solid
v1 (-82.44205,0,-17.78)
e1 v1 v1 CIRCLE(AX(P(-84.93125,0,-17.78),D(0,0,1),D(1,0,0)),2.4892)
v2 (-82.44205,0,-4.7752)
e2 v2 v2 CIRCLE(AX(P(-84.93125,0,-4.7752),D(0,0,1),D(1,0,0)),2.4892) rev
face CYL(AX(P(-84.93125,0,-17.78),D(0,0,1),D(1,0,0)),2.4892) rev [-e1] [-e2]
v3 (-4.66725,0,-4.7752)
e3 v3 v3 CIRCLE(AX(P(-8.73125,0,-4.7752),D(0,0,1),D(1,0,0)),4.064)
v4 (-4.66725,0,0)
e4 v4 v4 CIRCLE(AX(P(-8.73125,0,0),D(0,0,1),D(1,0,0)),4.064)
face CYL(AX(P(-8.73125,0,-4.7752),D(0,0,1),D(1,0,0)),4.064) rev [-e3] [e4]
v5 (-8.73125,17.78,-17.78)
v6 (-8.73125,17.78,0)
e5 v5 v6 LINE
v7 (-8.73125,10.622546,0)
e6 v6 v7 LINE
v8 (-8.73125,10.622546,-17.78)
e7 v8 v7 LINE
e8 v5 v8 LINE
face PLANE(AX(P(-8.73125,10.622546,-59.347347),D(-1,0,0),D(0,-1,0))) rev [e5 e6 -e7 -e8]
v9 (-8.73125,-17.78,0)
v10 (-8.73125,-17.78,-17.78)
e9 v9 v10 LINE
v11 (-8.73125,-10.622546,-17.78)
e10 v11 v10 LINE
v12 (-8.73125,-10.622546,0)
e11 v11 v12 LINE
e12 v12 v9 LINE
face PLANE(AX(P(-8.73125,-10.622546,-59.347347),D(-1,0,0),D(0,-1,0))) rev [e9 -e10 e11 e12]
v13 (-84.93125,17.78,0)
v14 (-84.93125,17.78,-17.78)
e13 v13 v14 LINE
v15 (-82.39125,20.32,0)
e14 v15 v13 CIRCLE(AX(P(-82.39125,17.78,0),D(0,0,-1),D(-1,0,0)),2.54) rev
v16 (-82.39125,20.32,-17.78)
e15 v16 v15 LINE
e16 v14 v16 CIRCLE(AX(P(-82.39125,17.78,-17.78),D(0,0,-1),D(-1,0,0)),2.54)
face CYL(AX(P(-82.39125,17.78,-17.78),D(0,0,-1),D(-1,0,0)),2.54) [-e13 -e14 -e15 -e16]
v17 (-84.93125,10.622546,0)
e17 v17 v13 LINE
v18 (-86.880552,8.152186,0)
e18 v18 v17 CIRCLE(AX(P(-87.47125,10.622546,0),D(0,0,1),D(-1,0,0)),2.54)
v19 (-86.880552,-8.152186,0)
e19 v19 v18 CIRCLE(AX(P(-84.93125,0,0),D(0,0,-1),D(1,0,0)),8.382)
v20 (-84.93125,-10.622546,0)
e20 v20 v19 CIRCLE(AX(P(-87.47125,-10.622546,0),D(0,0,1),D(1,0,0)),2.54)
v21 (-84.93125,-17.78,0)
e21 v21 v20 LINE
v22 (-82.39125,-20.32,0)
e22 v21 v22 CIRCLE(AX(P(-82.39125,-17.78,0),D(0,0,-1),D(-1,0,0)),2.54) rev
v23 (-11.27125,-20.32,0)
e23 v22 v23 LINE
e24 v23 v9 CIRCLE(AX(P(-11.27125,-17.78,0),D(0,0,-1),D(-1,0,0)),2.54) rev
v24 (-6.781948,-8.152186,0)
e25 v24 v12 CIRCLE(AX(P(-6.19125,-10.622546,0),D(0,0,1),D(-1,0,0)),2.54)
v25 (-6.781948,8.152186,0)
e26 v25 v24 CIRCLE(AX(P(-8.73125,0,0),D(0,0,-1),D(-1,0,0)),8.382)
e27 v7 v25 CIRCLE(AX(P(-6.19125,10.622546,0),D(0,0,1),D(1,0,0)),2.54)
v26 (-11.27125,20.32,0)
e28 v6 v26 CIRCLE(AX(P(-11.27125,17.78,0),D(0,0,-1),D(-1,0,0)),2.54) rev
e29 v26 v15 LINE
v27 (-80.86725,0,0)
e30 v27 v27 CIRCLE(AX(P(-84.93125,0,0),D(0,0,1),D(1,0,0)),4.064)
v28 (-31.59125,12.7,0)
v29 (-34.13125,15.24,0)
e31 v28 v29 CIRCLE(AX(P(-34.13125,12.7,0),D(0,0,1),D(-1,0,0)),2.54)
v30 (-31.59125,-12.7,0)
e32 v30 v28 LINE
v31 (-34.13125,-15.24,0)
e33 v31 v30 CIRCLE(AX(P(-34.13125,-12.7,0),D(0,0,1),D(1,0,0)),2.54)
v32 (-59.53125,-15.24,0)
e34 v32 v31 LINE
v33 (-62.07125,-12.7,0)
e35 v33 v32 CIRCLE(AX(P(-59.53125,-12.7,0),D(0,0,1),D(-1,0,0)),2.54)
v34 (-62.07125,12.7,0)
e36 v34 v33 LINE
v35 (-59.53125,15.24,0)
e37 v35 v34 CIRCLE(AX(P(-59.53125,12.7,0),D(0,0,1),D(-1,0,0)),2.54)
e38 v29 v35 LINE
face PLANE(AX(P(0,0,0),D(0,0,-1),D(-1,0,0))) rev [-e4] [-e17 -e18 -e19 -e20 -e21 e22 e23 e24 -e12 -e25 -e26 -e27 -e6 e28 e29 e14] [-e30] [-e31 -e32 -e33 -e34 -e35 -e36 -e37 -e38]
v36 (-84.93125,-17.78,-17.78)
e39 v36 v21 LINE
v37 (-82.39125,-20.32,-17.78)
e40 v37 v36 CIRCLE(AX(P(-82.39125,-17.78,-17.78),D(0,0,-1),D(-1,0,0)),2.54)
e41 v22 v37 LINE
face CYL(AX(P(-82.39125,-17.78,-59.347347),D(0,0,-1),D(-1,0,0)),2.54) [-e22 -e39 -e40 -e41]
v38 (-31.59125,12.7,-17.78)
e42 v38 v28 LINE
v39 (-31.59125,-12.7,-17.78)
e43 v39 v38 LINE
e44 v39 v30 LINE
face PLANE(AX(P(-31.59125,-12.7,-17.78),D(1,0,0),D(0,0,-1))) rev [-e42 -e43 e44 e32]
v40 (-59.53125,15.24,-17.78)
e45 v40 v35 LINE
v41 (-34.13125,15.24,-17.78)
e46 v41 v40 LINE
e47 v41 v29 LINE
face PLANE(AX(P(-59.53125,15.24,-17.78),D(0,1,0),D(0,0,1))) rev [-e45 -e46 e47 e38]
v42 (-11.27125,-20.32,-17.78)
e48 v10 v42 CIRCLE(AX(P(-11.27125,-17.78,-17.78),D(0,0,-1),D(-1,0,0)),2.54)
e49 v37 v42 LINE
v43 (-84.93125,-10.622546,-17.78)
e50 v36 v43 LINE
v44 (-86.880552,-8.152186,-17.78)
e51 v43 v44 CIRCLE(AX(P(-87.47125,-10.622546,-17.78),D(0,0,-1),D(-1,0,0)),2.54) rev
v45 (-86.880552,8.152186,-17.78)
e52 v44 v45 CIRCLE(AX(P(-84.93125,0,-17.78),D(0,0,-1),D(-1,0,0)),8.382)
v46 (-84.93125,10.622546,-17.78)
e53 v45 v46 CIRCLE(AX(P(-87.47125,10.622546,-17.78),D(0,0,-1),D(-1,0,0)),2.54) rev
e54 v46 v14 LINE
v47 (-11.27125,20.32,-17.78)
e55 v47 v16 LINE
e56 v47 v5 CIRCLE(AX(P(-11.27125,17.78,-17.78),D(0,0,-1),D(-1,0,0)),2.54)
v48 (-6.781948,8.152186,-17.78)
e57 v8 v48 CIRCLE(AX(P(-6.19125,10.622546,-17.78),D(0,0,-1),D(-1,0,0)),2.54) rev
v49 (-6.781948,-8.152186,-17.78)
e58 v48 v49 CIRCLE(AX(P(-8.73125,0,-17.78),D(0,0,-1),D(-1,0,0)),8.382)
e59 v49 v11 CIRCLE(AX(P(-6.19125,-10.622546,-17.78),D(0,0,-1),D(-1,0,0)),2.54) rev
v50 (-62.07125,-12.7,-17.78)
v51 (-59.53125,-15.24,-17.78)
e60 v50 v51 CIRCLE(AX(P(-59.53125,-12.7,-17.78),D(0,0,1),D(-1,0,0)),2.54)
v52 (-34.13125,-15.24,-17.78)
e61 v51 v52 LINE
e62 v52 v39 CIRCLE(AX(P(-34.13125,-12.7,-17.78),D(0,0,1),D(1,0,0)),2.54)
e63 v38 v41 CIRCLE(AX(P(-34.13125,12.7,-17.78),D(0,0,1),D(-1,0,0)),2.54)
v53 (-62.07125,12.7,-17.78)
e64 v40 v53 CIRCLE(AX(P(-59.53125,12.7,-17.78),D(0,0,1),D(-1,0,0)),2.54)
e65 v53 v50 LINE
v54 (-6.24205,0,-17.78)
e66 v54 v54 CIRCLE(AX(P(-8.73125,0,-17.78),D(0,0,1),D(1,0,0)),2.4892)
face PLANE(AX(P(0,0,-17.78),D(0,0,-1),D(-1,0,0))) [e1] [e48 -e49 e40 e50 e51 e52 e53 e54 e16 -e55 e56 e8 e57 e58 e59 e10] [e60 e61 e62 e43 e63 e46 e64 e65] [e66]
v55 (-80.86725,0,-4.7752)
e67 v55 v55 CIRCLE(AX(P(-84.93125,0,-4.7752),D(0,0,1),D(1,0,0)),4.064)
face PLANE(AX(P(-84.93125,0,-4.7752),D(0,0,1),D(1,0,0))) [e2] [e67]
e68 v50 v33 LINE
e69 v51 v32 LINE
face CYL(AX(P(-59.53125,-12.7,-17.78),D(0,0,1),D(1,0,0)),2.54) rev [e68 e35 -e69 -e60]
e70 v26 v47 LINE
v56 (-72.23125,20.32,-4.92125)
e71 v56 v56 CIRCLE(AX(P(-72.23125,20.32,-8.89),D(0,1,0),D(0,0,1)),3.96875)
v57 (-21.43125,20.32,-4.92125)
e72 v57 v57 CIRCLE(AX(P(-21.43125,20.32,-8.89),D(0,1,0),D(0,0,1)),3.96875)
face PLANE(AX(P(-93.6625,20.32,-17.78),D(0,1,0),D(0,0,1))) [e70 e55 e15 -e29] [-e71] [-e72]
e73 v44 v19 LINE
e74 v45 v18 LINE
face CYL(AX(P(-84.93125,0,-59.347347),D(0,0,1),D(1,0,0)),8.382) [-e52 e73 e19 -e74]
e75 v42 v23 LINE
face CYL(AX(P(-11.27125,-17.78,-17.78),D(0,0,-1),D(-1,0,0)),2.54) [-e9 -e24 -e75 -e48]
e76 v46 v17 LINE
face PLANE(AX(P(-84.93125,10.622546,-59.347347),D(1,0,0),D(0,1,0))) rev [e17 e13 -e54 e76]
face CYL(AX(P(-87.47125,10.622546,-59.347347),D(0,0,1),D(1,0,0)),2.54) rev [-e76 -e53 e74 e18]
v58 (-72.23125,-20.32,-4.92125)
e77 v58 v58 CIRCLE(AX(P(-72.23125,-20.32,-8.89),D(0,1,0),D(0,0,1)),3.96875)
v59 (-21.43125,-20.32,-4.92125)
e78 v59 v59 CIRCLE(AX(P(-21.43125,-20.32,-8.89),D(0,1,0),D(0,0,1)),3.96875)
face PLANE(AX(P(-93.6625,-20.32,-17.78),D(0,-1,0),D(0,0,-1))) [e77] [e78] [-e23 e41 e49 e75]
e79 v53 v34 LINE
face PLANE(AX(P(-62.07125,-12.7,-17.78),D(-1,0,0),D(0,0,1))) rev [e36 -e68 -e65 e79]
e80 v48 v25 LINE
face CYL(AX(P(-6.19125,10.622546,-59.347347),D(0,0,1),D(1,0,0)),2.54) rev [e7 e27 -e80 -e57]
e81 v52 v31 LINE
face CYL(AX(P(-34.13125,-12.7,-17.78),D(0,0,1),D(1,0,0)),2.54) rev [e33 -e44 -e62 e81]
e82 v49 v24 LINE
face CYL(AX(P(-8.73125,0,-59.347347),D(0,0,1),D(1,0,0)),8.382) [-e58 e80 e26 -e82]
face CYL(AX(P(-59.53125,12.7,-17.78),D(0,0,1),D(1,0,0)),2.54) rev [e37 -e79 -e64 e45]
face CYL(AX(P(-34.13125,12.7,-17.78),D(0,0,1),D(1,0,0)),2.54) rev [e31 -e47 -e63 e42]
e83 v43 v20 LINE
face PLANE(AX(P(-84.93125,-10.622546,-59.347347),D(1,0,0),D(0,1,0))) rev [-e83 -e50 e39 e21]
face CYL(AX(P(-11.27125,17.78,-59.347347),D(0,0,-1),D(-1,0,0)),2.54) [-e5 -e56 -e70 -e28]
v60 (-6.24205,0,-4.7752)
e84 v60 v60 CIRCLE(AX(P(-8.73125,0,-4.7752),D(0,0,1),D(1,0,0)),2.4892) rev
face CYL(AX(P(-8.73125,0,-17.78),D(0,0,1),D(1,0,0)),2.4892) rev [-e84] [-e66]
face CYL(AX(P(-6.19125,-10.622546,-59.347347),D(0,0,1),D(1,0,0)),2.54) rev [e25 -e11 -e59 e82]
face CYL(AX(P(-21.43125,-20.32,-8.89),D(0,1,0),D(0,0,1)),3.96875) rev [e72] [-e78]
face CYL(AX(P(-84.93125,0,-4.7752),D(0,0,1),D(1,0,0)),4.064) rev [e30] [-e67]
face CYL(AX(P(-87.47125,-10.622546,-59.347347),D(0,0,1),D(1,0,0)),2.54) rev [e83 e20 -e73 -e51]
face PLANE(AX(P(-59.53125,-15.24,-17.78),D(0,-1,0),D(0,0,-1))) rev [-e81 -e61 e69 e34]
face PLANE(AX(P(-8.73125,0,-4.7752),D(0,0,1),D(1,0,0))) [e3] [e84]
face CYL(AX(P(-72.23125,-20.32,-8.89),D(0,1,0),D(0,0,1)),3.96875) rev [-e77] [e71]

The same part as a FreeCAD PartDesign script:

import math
import FreeCAD as App
import Part
import Sketcher

V = App.Vector
Q = App.Units.Quantity


def edges_at(feature, points):
    """Names of the edges that pass closest to the given points."""
    edges = feature.Shape.Edges
    near = lambda p: min(range(len(edges)), key=lambda i: edges[i].distToShape(Part.Vertex(*p))[0])
    return sorted({f"Edge{near(p) + 1}" for p in points})

doc = App.newDocument("Part")
body = doc.addObject("PartDesign::Body", "Body")

# Sketch on XY plane
sketch1 = body.newObject("Sketcher::SketchObject", "Sketch")
sketch1.AttachmentSupport = (doc.getObject("XY_Plane"), [""])
sketch1.MapMode = "FlatFace"
sketch1.addGeometry(Part.LineSegment(V(-93.6625, 20.32, 0), V(-93.6625, -20.32, 0)), False)
sketch1.addGeometry(Part.LineSegment(V(-93.6625, -20.32, 0), V(0, -20.32, 0)), False)
sketch1.addGeometry(Part.LineSegment(V(0, -20.32, 0), V(0, 20.32, 0)), False)
sketch1.addGeometry(Part.LineSegment(V(0, 20.32, 0), V(-93.6625, 20.32, 0)), False)
sketch1.addGeometry(Part.Circle(V(-84.93125, 0, 0), V(0, 0, 1), 2.4892), False)
sketch1.addGeometry(Part.Circle(V(-8.73125, 0, 0), V(0, 0, 1), 2.4892), False)
sketch1.addConstraint(Sketcher.Constraint("Coincident", 0, 2, 1, 1))
sketch1.addConstraint(Sketcher.Constraint("Coincident", 1, 2, 2, 1))
sketch1.addConstraint(Sketcher.Constraint("Coincident", 2, 2, 3, 1))
sketch1.addConstraint(Sketcher.Constraint("Coincident", 3, 2, 0, 1))
sketch1.addConstraint(Sketcher.Constraint("Vertical", 0))
sketch1.addConstraint(Sketcher.Constraint("Horizontal", 1))
sketch1.addConstraint(Sketcher.Constraint("Vertical", 2))
sketch1.addConstraint(Sketcher.Constraint("Horizontal", 3))
sketch1.addConstraint(Sketcher.Constraint("Equal", 4, 5))
sketch1.addConstraint(Sketcher.Constraint("Symmetric", 1, 2, 2, 2, -1, 1))
sketch1.addConstraint(Sketcher.Constraint("PointOnObject", 4, 3, -1))
sketch1.addConstraint(Sketcher.Constraint("PointOnObject", 5, 3, -1))
sketch1.addConstraint(Sketcher.Constraint("Diameter", 4, Q("0.196 in")))
sketch1.addConstraint(Sketcher.Constraint("DistanceY", 0, 2, 0, 1, Q("1.6 in")))
sketch1.addConstraint(Sketcher.Constraint("DistanceX", 4, 3, 5, 3, Q("3 in")))
sketch1.addConstraint(Sketcher.Constraint("DistanceX", 1, 1, 1, 2, Q("3.6875 in")))
sketch1.addConstraint(Sketcher.Constraint("DistanceX", 4, 3, -1, 1, Q("3.34375 in")))
pad1 = body.newObject("PartDesign::Pad", "Pad")
pad1.Profile = sketch1
pad1.Length = Q("0.7 in")
pad1.Reversed = True

# Sketch on XZ plane
sketch2 = body.newObject("Sketcher::SketchObject", "Sketch001")
sketch2.AttachmentSupport = (doc.getObject("XZ_Plane"), [""])
sketch2.MapMode = "FlatFace"
sketch2.AttachmentOffset = App.Placement(V(0, 0, -0.8 * 25.4), App.Rotation())
sketch2.addGeometry(Part.Circle(V(-72.23125, -8.89, 0), V(0, 0, 1), 3.96875), False)
sketch2.addGeometry(Part.Circle(V(-21.43125, -8.89, 0), V(0, 0, 1), 3.96875), False)
sketch2.addConstraint(Sketcher.Constraint("Equal", 0, 1))
sketch2.addConstraint(Sketcher.Constraint("Horizontal", 0, 3, 1, 3))
sketch2.addConstraint(Sketcher.Constraint("Diameter", 0, Q("0.3125 in")))
sketch2.addConstraint(Sketcher.Constraint("DistanceX", 0, 3, 1, 3, Q("2 in")))
sketch2.addConstraint(Sketcher.Constraint("DistanceY", 0, 3, -1, 1, Q("0.35 in")))
sketch2.addConstraint(Sketcher.Constraint("DistanceX", 0, 3, -1, 1, Q("2.84375 in")))
pocket1 = body.newObject("PartDesign::Pocket", "Pocket")
pocket1.Profile = sketch2
pocket1.Type = "ThroughAll"
pocket1.Reversed = True

# Sketch on XY plane
sketch3 = body.newObject("Sketcher::SketchObject", "Sketch002")
sketch3.AttachmentSupport = (doc.getObject("XY_Plane"), [""])
sketch3.MapMode = "FlatFace"
sketch3.addGeometry(Part.LineSegment(V(-93.6625, 20.32, 0), V(-93.6625, -20.32, 0)), False)
sketch3.addGeometry(Part.LineSegment(V(-93.6625, -20.32, 0), V(-84.93125, -20.32, 0)), False)
sketch3.addGeometry(Part.LineSegment(V(-84.93125, -20.32, 0), V(-84.93125, -10.622546, 0)), False)
sketch3.addGeometry(Part.ArcOfCircle(Part.Circle(V(-87.47125, -10.622546, 0), V(0, 0, 1), 2.54), math.radians(0), math.radians(76.552273)), False)
sketch3.addGeometry(Part.ArcOfCircle(Part.Circle(V(-84.93125, 0, 0), V(0, 0, 1), 8.382), math.radians(103.447727), math.radians(256.552273)), False)
sketch3.addGeometry(Part.ArcOfCircle(Part.Circle(V(-87.47125, 10.622546, 0), V(0, 0, 1), 2.54), math.radians(-76.552273), math.radians(0)), False)
sketch3.addGeometry(Part.LineSegment(V(-84.93125, 10.622546, 0), V(-84.93125, 20.32, 0)), False)
sketch3.addGeometry(Part.LineSegment(V(-84.93125, 20.32, 0), V(-93.6625, 20.32, 0)), False)
sketch3.addGeometry(Part.LineSegment(V(0, -20.32, 0), V(0, 20.32, 0)), False)
sketch3.addGeometry(Part.LineSegment(V(0, 20.32, 0), V(-8.73125, 20.32, 0)), False)
sketch3.addGeometry(Part.LineSegment(V(-8.73125, 20.32, 0), V(-8.73125, 10.622546, 0)), False)
sketch3.addGeometry(Part.ArcOfCircle(Part.Circle(V(-6.19125, 10.622546, 0), V(0, 0, 1), 2.54), math.radians(-180), math.radians(-103.447727)), False)
sketch3.addGeometry(Part.ArcOfCircle(Part.Circle(V(-8.73125, 0, 0), V(0, 0, 1), 8.382), math.radians(-76.552273), math.radians(76.552273)), False)
sketch3.addGeometry(Part.ArcOfCircle(Part.Circle(V(-6.19125, -10.622546, 0), V(0, 0, 1), 2.54), math.radians(103.447727), math.radians(180)), False)
sketch3.addGeometry(Part.LineSegment(V(-8.73125, -10.622546, 0), V(-8.73125, -20.32, 0)), False)
sketch3.addGeometry(Part.LineSegment(V(-8.73125, -20.32, 0), V(0, -20.32, 0)), False)
sketch3.addConstraint(Sketcher.Constraint("Coincident", 0, 2, 1, 1))
sketch3.addConstraint(Sketcher.Constraint("Coincident", 1, 2, 2, 1))
sketch3.addConstraint(Sketcher.Constraint("Tangent", 2, 2, 3, 1))
sketch3.addConstraint(Sketcher.Constraint("Tangent", 3, 2, 4, 2))
sketch3.addConstraint(Sketcher.Constraint("Tangent", 4, 1, 5, 1))
sketch3.addConstraint(Sketcher.Constraint("Tangent", 5, 2, 6, 1))
sketch3.addConstraint(Sketcher.Constraint("Coincident", 6, 2, 7, 1))
sketch3.addConstraint(Sketcher.Constraint("Coincident", 7, 2, 0, 1))
sketch3.addConstraint(Sketcher.Constraint("Coincident", 8, 2, 9, 1))
sketch3.addConstraint(Sketcher.Constraint("Coincident", 9, 2, 10, 1))
sketch3.addConstraint(Sketcher.Constraint("Tangent", 10, 2, 11, 1))
sketch3.addConstraint(Sketcher.Constraint("Tangent", 11, 2, 12, 2))
sketch3.addConstraint(Sketcher.Constraint("Tangent", 12, 1, 13, 1))
sketch3.addConstraint(Sketcher.Constraint("Tangent", 13, 2, 14, 1))
sketch3.addConstraint(Sketcher.Constraint("Coincident", 14, 2, 15, 1))
sketch3.addConstraint(Sketcher.Constraint("Coincident", 15, 2, 8, 1))
sketch3.addConstraint(Sketcher.Constraint("Vertical", 0))
sketch3.addConstraint(Sketcher.Constraint("Horizontal", 1))
sketch3.addConstraint(Sketcher.Constraint("Vertical", 2))
sketch3.addConstraint(Sketcher.Constraint("Vertical", 6))
sketch3.addConstraint(Sketcher.Constraint("Horizontal", 7))
sketch3.addConstraint(Sketcher.Constraint("Vertical", 8))
sketch3.addConstraint(Sketcher.Constraint("Horizontal", 9))
sketch3.addConstraint(Sketcher.Constraint("Vertical", 10))
sketch3.addConstraint(Sketcher.Constraint("Vertical", 14))
sketch3.addConstraint(Sketcher.Constraint("Horizontal", 15))
sketch3.addConstraint(Sketcher.Constraint("Equal", 3, 5))
sketch3.addConstraint(Sketcher.Constraint("Equal", 5, 11))
sketch3.addConstraint(Sketcher.Constraint("Equal", 4, 12))
sketch3.addConstraint(Sketcher.Constraint("Equal", 11, 13))
sketch3.addConstraint(Sketcher.Constraint("Symmetric", 8, 2, 15, 2, -1, 1))
sketch3.addConstraint(Sketcher.Constraint("Symmetric", 3, 3, 5, 3, -1))
sketch3.addConstraint(Sketcher.Constraint("Symmetric", 11, 3, 13, 3, -1))
sketch3.addConstraint(Sketcher.Constraint("Horizontal", 5, 3, 11, 3))
sketch3.addConstraint(Sketcher.Constraint("Horizontal", 7, 2, 8, 2))
sketch3.addConstraint(Sketcher.Constraint("Horizontal", 1, 2, 14, 2))
sketch3.addConstraint(Sketcher.Constraint("Vertical", 4, 3, 1, 2))
sketch3.addConstraint(Sketcher.Constraint("Equal", 7, 9))
sketch3.addConstraint(Sketcher.Constraint("Radius", 3, Q("0.1 in")))
sketch3.addConstraint(Sketcher.Constraint("Radius", 4, Q("0.33 in")))
sketch3.addConstraint(Sketcher.Constraint("DistanceY", 0, 2, 0, 1, Q("1.6 in")))
sketch3.addConstraint(Sketcher.Constraint("DistanceX", 4, 3, 12, 3, Q("3 in")))
sketch3.addConstraint(Sketcher.Constraint("DistanceX", 1, 1, 1, 2, Q("0.34375 in")))
pocket2 = body.newObject("PartDesign::Pocket", "Pocket001")
pocket2.Profile = sketch3
pocket2.Length = Q("0.7 in")
doc.recompute()

fillet = body.newObject("PartDesign::Fillet", "Fillet")
fillet.Base = (pocket2, edges_at(pocket2, [
    (-84.931, 20.32, -8.89),
    (-84.931, -20.32, -8.89),
    (-8.731, 20.32, -8.89),
    (-8.731, -20.32, -8.89),
]))
fillet.Radius = Q("0.1 in")

# Sketch on XY plane
sketch4 = body.newObject("Sketcher::SketchObject", "Sketch003")
sketch4.AttachmentSupport = (doc.getObject("XY_Plane"), [""])
sketch4.MapMode = "FlatFace"
sketch4.addGeometry(Part.Circle(V(-84.93125, 0, 0), V(0, 0, 1), 4.064), False)
sketch4.addGeometry(Part.Circle(V(-8.73125, 0, 0), V(0, 0, 1), 4.064), False)
sketch4.addConstraint(Sketcher.Constraint("Equal", 0, 1))
sketch4.addConstraint(Sketcher.Constraint("PointOnObject", 0, 3, -1))
sketch4.addConstraint(Sketcher.Constraint("PointOnObject", 1, 3, -1))
sketch4.addConstraint(Sketcher.Constraint("Diameter", 0, Q("0.32 in")))
sketch4.addConstraint(Sketcher.Constraint("DistanceX", 0, 3, 1, 3, Q("3 in")))
sketch4.addConstraint(Sketcher.Constraint("DistanceX", 0, 3, -1, 1, Q("3.34375 in")))
pocket3 = body.newObject("PartDesign::Pocket", "Pocket002")
pocket3.Profile = sketch4
pocket3.Length = Q("0.188 in")

# Sketch on XY plane
sketch5 = body.newObject("Sketcher::SketchObject", "Sketch004")
sketch5.AttachmentSupport = (doc.getObject("XY_Plane"), [""])
sketch5.MapMode = "FlatFace"
sketch5.addGeometry(Part.LineSegment(V(-59.53125, -15.24, 0), V(-34.13125, -15.24, 0)), False)
sketch5.addGeometry(Part.ArcOfCircle(Part.Circle(V(-34.13125, -12.7, 0), V(0, 0, 1), 2.54), math.radians(-90), math.radians(0)), False)
sketch5.addGeometry(Part.LineSegment(V(-31.59125, -12.7, 0), V(-31.59125, 12.7, 0)), False)
sketch5.addGeometry(Part.ArcOfCircle(Part.Circle(V(-34.13125, 12.7, 0), V(0, 0, 1), 2.54), math.radians(0), math.radians(90)), False)
sketch5.addGeometry(Part.LineSegment(V(-34.13125, 15.24, 0), V(-59.53125, 15.24, 0)), False)
sketch5.addGeometry(Part.ArcOfCircle(Part.Circle(V(-59.53125, 12.7, 0), V(0, 0, 1), 2.54), math.radians(90), math.radians(180)), False)
sketch5.addGeometry(Part.LineSegment(V(-62.07125, 12.7, 0), V(-62.07125, -12.7, 0)), False)
sketch5.addGeometry(Part.ArcOfCircle(Part.Circle(V(-59.53125, -12.7, 0), V(0, 0, 1), 2.54), math.radians(-180), math.radians(-90)), False)
sketch5.addConstraint(Sketcher.Constraint("Tangent", 0, 2, 1, 1))
sketch5.addConstraint(Sketcher.Constraint("Tangent", 1, 2, 2, 1))
sketch5.addConstraint(Sketcher.Constraint("Tangent", 2, 2, 3, 1))
sketch5.addConstraint(Sketcher.Constraint("Tangent", 3, 2, 4, 1))
sketch5.addConstraint(Sketcher.Constraint("Tangent", 4, 2, 5, 1))
sketch5.addConstraint(Sketcher.Constraint("Tangent", 5, 2, 6, 1))
sketch5.addConstraint(Sketcher.Constraint("Tangent", 6, 2, 7, 1))
sketch5.addConstraint(Sketcher.Constraint("Tangent", 7, 2, 0, 1))
sketch5.addConstraint(Sketcher.Constraint("Horizontal", 0))
sketch5.addConstraint(Sketcher.Constraint("Vertical", 2))
sketch5.addConstraint(Sketcher.Constraint("Horizontal", 4))
sketch5.addConstraint(Sketcher.Constraint("Vertical", 6))
sketch5.addConstraint(Sketcher.Constraint("Equal", 1, 3))
sketch5.addConstraint(Sketcher.Constraint("Equal", 3, 5))
sketch5.addConstraint(Sketcher.Constraint("Equal", 5, 7))
sketch5.addConstraint(Sketcher.Constraint("Equal", 4, 2))
sketch5.addConstraint(Sketcher.Constraint("Radius", 1, Q("0.1 in")))
sketch5.addConstraint(Sketcher.Constraint("DistanceX", 0, 1, 0, 2, Q("1 in")))
sketch5.addConstraint(Sketcher.Constraint("DistanceY", 1, 3, -1, 1, Q("0.5 in")))
sketch5.addConstraint(Sketcher.Constraint("DistanceX", 1, 3, -1, 1, Q("1.34375 in")))
pocket4 = body.newObject("PartDesign::Pocket", "Pocket003")
pocket4.Profile = sketch5
pocket4.Type = "ThroughAll"

doc.recompute()
